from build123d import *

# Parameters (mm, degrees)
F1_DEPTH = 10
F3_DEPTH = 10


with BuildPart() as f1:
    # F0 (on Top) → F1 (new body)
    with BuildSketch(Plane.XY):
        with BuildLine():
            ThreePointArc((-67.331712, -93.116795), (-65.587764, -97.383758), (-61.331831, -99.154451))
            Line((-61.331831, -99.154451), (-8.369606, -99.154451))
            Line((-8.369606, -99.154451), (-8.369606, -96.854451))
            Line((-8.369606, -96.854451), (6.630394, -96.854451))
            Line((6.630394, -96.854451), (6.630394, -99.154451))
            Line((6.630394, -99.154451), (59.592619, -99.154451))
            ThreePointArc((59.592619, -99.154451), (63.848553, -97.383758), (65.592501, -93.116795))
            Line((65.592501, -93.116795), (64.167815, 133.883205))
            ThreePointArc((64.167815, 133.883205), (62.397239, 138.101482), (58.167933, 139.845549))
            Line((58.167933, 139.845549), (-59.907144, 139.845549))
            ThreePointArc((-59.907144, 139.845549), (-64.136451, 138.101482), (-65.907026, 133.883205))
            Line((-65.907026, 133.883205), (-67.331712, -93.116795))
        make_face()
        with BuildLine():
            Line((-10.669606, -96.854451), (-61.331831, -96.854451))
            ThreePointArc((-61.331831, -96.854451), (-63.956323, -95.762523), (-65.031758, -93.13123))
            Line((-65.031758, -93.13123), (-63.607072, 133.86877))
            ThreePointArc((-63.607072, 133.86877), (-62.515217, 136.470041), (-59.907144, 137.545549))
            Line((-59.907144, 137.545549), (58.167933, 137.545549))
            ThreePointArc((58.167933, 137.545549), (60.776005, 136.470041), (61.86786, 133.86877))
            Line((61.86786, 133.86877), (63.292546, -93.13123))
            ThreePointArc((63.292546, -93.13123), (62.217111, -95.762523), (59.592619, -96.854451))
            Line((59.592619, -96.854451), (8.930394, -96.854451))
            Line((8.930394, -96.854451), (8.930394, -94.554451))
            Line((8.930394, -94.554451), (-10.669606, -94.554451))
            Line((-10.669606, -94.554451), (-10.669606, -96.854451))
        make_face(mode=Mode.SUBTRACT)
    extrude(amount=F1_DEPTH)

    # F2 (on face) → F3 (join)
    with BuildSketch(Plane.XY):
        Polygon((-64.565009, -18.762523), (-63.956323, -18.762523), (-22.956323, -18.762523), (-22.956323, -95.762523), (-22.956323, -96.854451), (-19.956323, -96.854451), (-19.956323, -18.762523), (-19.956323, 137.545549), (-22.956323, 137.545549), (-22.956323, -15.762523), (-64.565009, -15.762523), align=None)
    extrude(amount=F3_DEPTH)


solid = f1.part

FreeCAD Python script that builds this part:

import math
import FreeCAD as App
import Part
import Sketcher

V = App.Vector

doc = App.newDocument("Part")
params = doc.addObject("Spreadsheet::Sheet", "Params")
for row, (alias, value) in enumerate([
    ("sketch1_radius", "6.000001 mm"),
    ("sketch1_radius2", "3.7 mm"),
    ("sketch1_width", "15 mm"),
    ("sketch1_width2", "19.6 mm"),
    ("pad1_length", "10 mm"),
    ("sketch2_width", "3 mm"),
    ("sketch2_height", "234.4 mm"),
    ("pad2_length", "10 mm"),
], start=1):
    params.set(f"A{row}", alias)
    params.set(f"B{row}", "=" + value)
    params.setAlias(f"B{row}", alias)

body = doc.addObject("PartDesign::Body", "Body")

# Sketch on XY plane
sketch1 = body.newObject("Sketcher::SketchObject", "Sketch")
sketch1.AttachmentSupport = (doc.getObject("XY_Plane"), [""])
sketch1.MapMode = "FlatFace"
sketch1.addGeometry(Part.ArcOfCircle(Part.Circle(V(-61.3, -93.2, 0), V(0, 0, 1), 6), math.radians(180), math.radians(270)), False)
sketch1.addGeometry(Part.LineSegment(V(-61.3, -99.2, 0), V(-8.4, -99.2, 0)), False)
sketch1.addGeometry(Part.LineSegment(V(-8.4, -99.2, 0), V(-8.4, -96.9, 0)), False)
sketch1.addGeometry(Part.LineSegment(V(-8.4, -96.9, 0), V(6.6, -96.9, 0)), False)
sketch1.addGeometry(Part.LineSegment(V(6.6, -96.9, 0), V(6.6, -99.2, 0)), False)
sketch1.addGeometry(Part.LineSegment(V(6.6, -99.2, 0), V(59.6, -99.2, 0)), False)
sketch1.addGeometry(Part.ArcOfCircle(Part.Circle(V(59.6, -93.2, 0), V(0, 0, 1), 6), math.radians(-90), math.radians(0)), False)
sketch1.addGeometry(Part.LineSegment(V(65.6, -93.1, 0), V(64.2, 133.9, 0)), False)
sketch1.addGeometry(Part.ArcOfCircle(Part.Circle(V(58.2, 133.8, 0), V(0, 0, 1), 6), math.radians(0), math.radians(90)), False)
sketch1.addGeometry(Part.LineSegment(V(58.2, 139.8, 0), V(-59.9, 139.8, 0)), False)
sketch1.addGeometry(Part.ArcOfCircle(Part.Circle(V(-59.9, 133.8, 0), V(0, 0, 1), 6), math.radians(90), math.radians(180)), False)
sketch1.addGeometry(Part.LineSegment(V(-65.9, 133.9, 0), V(-67.3, -93.1, 0)), False)
sketch1.addGeometry(Part.LineSegment(V(-10.7, -94.6, 0), V(-10.7, -96.9, 0)), False)
sketch1.addGeometry(Part.LineSegment(V(-10.7, -96.9, 0), V(-61.3, -96.9, 0)), False)
sketch1.addGeometry(Part.ArcOfCircle(Part.Circle(V(-61.3, -93.2, 0), V(0, 0, 1), 3.7), math.radians(180), math.radians(270)), False)
sketch1.addGeometry(Part.LineSegment(V(-65, -93.1, 0), V(-63.6, 133.9, 0)), False)
sketch1.addGeometry(Part.ArcOfCircle(Part.Circle(V(-59.9, 133.8, 0), V(0, 0, 1), 3.7), math.radians(90), math.radians(180)), False)
sketch1.addGeometry(Part.LineSegment(V(-59.9, 137.5, 0), V(58.2, 137.5, 0)), False)
sketch1.addGeometry(Part.ArcOfCircle(Part.Circle(V(58.2, 133.8, 0), V(0, 0, 1), 3.7), math.radians(0), math.radians(90)), False)
sketch1.addGeometry(Part.LineSegment(V(61.9, 133.9, 0), V(63.3, -93.1, 0)), False)
sketch1.addGeometry(Part.ArcOfCircle(Part.Circle(V(59.6, -93.2, 0), V(0, 0, 1), 3.7), math.radians(-90), math.radians(0)), False)
sketch1.addGeometry(Part.LineSegment(V(59.6, -96.9, 0), V(8.9, -96.9, 0)), False)
sketch1.addGeometry(Part.LineSegment(V(8.9, -96.9, 0), V(8.9, -94.6, 0)), False)
sketch1.addGeometry(Part.LineSegment(V(8.9, -94.6, 0), V(-10.7, -94.6, 0)), False)
sketch1.addConstraint(Sketcher.Constraint("Tangent", 0, 2, 1, 1))
sketch1.addConstraint(Sketcher.Constraint("Coincident", 1, 2, 2, 1))
sketch1.addConstraint(Sketcher.Constraint("Coincident", 2, 2, 3, 1))
sketch1.addConstraint(Sketcher.Constraint("Coincident", 3, 2, 4, 1))
sketch1.addConstraint(Sketcher.Constraint("Coincident", 4, 2, 5, 1))
sketch1.addConstraint(Sketcher.Constraint("Tangent", 5, 2, 6, 1))
sketch1.addConstraint(Sketcher.Constraint("Tangent", 6, 2, 7, 1))
sketch1.addConstraint(Sketcher.Constraint("Tangent", 7, 2, 8, 1))
sketch1.addConstraint(Sketcher.Constraint("Tangent", 8, 2, 9, 1))
sketch1.addConstraint(Sketcher.Constraint("Tangent", 9, 2, 10, 1))
sketch1.addConstraint(Sketcher.Constraint("Tangent", 10, 2, 11, 1))
sketch1.addConstraint(Sketcher.Constraint("Tangent", 11, 2, 0, 1))
sketch1.addConstraint(Sketcher.Constraint("Coincident", 12, 2, 13, 1))
sketch1.addConstraint(Sketcher.Constraint("Tangent", 13, 2, 14, 2))
sketch1.addConstraint(Sketcher.Constraint("Tangent", 14, 1, 15, 1))
sketch1.addConstraint(Sketcher.Constraint("Tangent", 15, 2, 16, 2))
sketch1.addConstraint(Sketcher.Constraint("Tangent", 16, 1, 17, 1))
sketch1.addConstraint(Sketcher.Constraint("Tangent", 17, 2, 18, 2))
sketch1.addConstraint(Sketcher.Constraint("Tangent", 18, 1, 19, 1))
sketch1.addConstraint(Sketcher.Constraint("Tangent", 19, 2, 20, 2))
sketch1.addConstraint(Sketcher.Constraint("Tangent", 20, 1, 21, 1))
sketch1.addConstraint(Sketcher.Constraint("Coincident", 21, 2, 22, 1))
sketch1.addConstraint(Sketcher.Constraint("Coincident", 22, 2, 23, 1))
sketch1.addConstraint(Sketcher.Constraint("Coincident", 23, 2, 12, 1))
sketch1.addConstraint(Sketcher.Constraint("Horizontal", 1))
sketch1.addConstraint(Sketcher.Constraint("Vertical", 2))
sketch1.addConstraint(Sketcher.Constraint("Horizontal", 3))
sketch1.addConstraint(Sketcher.Constraint("Vertical", 4))
sketch1.addConstraint(Sketcher.Constraint("Horizontal", 5))
sketch1.addConstraint(Sketcher.Constraint("Horizontal", 9))
sketch1.addConstraint(Sketcher.Constraint("Vertical", 12))
sketch1.addConstraint(Sketcher.Constraint("Horizontal", 13))
sketch1.addConstraint(Sketcher.Constraint("Horizontal", 17))
sketch1.addConstraint(Sketcher.Constraint("Horizontal", 21))
sketch1.addConstraint(Sketcher.Constraint("Vertical", 22))
sketch1.addConstraint(Sketcher.Constraint("Horizontal", 23))
sketch1.addConstraint(Sketcher.Constraint("Coincident", 14, 3, 0, 3))
sketch1.addConstraint(Sketcher.Constraint("Coincident", 16, 3, 10, 3))
sketch1.addConstraint(Sketcher.Constraint("Coincident", 18, 3, 8, 3))
sketch1.addConstraint(Sketcher.Constraint("Coincident", 20, 3, 6, 3))
sketch1.addConstraint(Sketcher.Constraint("Equal", 0, 6))
sketch1.addConstraint(Sketcher.Constraint("Equal", 8, 10))
sketch1.addConstraint(Sketcher.Constraint("Equal", 14, 16))
sketch1.addConstraint(Sketcher.Constraint("Equal", 18, 20))
sketch1.addConstraint(Sketcher.Constraint("Parallel", 11, 15))
sketch1.addConstraint(Sketcher.Constraint("Horizontal", 0, 3, 6, 3))
sketch1.addConstraint(Sketcher.Constraint("Horizontal", 7, 2, 10, 2))
sketch1.addConstraint(Sketcher.Constraint("Horizontal", 3, 2, 12, 2))
sketch1.addConstraint(Sketcher.Constraint("Equal", 1, 5))
sketch1.addConstraint(Sketcher.Constraint("Equal", 13, 21))
sketch1.addConstraint(Sketcher.Constraint("Equal", 4, 12))
sketch1.addConstraint(Sketcher.Constraint("Radius", 8, 6.000001))
sketch1.addConstraint(Sketcher.Constraint("Radius", 14, 3.7))
sketch1.addConstraint(Sketcher.Constraint("DistanceX", 3, 1, 3, 2, 15.0))
sketch1.addConstraint(Sketcher.Constraint("DistanceX", 23, 2, 23, 1, 19.6))
sketch1.addConstraint(Sketcher.Constraint("DistanceY", 6, 3, 8, 3, 227.000001))
sketch1.addConstraint(Sketcher.Constraint("DistanceX", -1, 1, 6, 2, 65.592501))
sketch1.addConstraint(Sketcher.Constraint("DistanceX", 1, 1, 1, 2, 52.962225))
sketch1.addConstraint(Sketcher.Constraint("DistanceX", 9, 2, 9, 1, 118.075077))
sketch1.addConstraint(Sketcher.Constraint("DistanceY", -1, 1, 10, 3, 133.845549))
sketch1.setExpression("Constraints[51]", "Params.sketch1_radius")
sketch1.setExpression("Constraints[52]", "Params.sketch1_radius2")
sketch1.setExpression("Constraints[53]", "Params.sketch1_width")
sketch1.setExpression("Constraints[54]", "Params.sketch1_width2")
pad1 = body.newObject("PartDesign::Pad", "Pad")
pad1.Profile = sketch1
pad1.setExpression("Length", "Params.pad1_length")

# Sketch on XY plane
sketch2 = body.newObject("Sketcher::SketchObject", "Sketch001")
sketch2.AttachmentSupport = (doc.getObject("XY_Plane"), [""])
sketch2.MapMode = "FlatFace"
sketch2.addGeometry(Part.LineSegment(V(-64.6, -18.8, 0), V(-23, -18.8, 0)), False)
sketch2.addGeometry(Part.LineSegment(V(-23, -18.8, 0), V(-23, -96.9, 0)), False)
sketch2.addGeometry(Part.LineSegment(V(-23, -96.9, 0), V(-20, -96.9, 0)), False)
sketch2.addGeometry(Part.LineSegment(V(-20, -96.9, 0), V(-20, 137.5, 0)), False)
sketch2.addGeometry(Part.LineSegment(V(-20, 137.5, 0), V(-23, 137.5, 0)), False)
sketch2.addGeometry(Part.LineSegment(V(-23, 137.5, 0), V(-23, -15.8, 0)), False)
sketch2.addGeometry(Part.LineSegment(V(-23, -15.8, 0), V(-64.6, -15.8, 0)), False)
sketch2.addGeometry(Part.LineSegment(V(-64.6, -15.8, 0), V(-64.6, -18.8, 0)), False)
sketch2.addConstraint(Sketcher.Constraint("Coincident", 0, 2, 1, 1))
sketch2.addConstraint(Sketcher.Constraint("Coincident", 1, 2, 2, 1))
sketch2.addConstraint(Sketcher.Constraint("Coincident", 2, 2, 3, 1))
sketch2.addConstraint(Sketcher.Constraint("Coincident", 3, 2, 4, 1))
sketch2.addConstraint(Sketcher.Constraint("Coincident", 4, 2, 5, 1))
sketch2.addConstraint(Sketcher.Constraint("Coincident", 5, 2, 6, 1))
sketch2.addConstraint(Sketcher.Constraint("Coincident", 6, 2, 7, 1))
sketch2.addConstraint(Sketcher.Constraint("Coincident", 7, 2, 0, 1))
sketch2.addConstraint(Sketcher.Constraint("Horizontal", 0))
sketch2.addConstraint(Sketcher.Constraint("Vertical", 1))
sketch2.addConstraint(Sketcher.Constraint("Horizontal", 2))
sketch2.addConstraint(Sketcher.Constraint("Vertical", 3))
sketch2.addConstraint(Sketcher.Constraint("Horizontal", 4))
sketch2.addConstraint(Sketcher.Constraint("Vertical", 5))
sketch2.addConstraint(Sketcher.Constraint("Horizontal", 6))
sketch2.addConstraint(Sketcher.Constraint("Vertical", 7))
sketch2.addConstraint(Sketcher.Constraint("Vertical", 1, 2, 4, 2))
sketch2.addConstraint(Sketcher.Constraint("Equal", 4, 7))
sketch2.addConstraint(Sketcher.Constraint("DistanceX", 2, 1, 2, 2, 3.0))
sketch2.addConstraint(Sketcher.Constraint("DistanceY", 3, 1, 3, 2, 234.4))
sketch2.addConstraint(Sketcher.Constraint("DistanceY", 5, 2, 5, 1, 153.308072))
sketch2.addConstraint(Sketcher.Constraint("DistanceX", 0, 1, 0, 2, 41.608686))
sketch2.addConstraint(Sketcher.Constraint("DistanceY", 1, 2, -1, 1, 96.854451))
sketch2.addConstraint(Sketcher.Constraint("DistanceX", 6, 2, -1, 1, 64.565009))
sketch2.setExpression("Constraints[18]", "Params.sketch2_width")
sketch2.setExpression("Constraints[19]", "Params.sketch2_height")
pad2 = body.newObject("PartDesign::Pad", "Pad001")
pad2.Profile = sketch2
pad2.setExpression("Length", "Params.pad2_length")

doc.recompute()
